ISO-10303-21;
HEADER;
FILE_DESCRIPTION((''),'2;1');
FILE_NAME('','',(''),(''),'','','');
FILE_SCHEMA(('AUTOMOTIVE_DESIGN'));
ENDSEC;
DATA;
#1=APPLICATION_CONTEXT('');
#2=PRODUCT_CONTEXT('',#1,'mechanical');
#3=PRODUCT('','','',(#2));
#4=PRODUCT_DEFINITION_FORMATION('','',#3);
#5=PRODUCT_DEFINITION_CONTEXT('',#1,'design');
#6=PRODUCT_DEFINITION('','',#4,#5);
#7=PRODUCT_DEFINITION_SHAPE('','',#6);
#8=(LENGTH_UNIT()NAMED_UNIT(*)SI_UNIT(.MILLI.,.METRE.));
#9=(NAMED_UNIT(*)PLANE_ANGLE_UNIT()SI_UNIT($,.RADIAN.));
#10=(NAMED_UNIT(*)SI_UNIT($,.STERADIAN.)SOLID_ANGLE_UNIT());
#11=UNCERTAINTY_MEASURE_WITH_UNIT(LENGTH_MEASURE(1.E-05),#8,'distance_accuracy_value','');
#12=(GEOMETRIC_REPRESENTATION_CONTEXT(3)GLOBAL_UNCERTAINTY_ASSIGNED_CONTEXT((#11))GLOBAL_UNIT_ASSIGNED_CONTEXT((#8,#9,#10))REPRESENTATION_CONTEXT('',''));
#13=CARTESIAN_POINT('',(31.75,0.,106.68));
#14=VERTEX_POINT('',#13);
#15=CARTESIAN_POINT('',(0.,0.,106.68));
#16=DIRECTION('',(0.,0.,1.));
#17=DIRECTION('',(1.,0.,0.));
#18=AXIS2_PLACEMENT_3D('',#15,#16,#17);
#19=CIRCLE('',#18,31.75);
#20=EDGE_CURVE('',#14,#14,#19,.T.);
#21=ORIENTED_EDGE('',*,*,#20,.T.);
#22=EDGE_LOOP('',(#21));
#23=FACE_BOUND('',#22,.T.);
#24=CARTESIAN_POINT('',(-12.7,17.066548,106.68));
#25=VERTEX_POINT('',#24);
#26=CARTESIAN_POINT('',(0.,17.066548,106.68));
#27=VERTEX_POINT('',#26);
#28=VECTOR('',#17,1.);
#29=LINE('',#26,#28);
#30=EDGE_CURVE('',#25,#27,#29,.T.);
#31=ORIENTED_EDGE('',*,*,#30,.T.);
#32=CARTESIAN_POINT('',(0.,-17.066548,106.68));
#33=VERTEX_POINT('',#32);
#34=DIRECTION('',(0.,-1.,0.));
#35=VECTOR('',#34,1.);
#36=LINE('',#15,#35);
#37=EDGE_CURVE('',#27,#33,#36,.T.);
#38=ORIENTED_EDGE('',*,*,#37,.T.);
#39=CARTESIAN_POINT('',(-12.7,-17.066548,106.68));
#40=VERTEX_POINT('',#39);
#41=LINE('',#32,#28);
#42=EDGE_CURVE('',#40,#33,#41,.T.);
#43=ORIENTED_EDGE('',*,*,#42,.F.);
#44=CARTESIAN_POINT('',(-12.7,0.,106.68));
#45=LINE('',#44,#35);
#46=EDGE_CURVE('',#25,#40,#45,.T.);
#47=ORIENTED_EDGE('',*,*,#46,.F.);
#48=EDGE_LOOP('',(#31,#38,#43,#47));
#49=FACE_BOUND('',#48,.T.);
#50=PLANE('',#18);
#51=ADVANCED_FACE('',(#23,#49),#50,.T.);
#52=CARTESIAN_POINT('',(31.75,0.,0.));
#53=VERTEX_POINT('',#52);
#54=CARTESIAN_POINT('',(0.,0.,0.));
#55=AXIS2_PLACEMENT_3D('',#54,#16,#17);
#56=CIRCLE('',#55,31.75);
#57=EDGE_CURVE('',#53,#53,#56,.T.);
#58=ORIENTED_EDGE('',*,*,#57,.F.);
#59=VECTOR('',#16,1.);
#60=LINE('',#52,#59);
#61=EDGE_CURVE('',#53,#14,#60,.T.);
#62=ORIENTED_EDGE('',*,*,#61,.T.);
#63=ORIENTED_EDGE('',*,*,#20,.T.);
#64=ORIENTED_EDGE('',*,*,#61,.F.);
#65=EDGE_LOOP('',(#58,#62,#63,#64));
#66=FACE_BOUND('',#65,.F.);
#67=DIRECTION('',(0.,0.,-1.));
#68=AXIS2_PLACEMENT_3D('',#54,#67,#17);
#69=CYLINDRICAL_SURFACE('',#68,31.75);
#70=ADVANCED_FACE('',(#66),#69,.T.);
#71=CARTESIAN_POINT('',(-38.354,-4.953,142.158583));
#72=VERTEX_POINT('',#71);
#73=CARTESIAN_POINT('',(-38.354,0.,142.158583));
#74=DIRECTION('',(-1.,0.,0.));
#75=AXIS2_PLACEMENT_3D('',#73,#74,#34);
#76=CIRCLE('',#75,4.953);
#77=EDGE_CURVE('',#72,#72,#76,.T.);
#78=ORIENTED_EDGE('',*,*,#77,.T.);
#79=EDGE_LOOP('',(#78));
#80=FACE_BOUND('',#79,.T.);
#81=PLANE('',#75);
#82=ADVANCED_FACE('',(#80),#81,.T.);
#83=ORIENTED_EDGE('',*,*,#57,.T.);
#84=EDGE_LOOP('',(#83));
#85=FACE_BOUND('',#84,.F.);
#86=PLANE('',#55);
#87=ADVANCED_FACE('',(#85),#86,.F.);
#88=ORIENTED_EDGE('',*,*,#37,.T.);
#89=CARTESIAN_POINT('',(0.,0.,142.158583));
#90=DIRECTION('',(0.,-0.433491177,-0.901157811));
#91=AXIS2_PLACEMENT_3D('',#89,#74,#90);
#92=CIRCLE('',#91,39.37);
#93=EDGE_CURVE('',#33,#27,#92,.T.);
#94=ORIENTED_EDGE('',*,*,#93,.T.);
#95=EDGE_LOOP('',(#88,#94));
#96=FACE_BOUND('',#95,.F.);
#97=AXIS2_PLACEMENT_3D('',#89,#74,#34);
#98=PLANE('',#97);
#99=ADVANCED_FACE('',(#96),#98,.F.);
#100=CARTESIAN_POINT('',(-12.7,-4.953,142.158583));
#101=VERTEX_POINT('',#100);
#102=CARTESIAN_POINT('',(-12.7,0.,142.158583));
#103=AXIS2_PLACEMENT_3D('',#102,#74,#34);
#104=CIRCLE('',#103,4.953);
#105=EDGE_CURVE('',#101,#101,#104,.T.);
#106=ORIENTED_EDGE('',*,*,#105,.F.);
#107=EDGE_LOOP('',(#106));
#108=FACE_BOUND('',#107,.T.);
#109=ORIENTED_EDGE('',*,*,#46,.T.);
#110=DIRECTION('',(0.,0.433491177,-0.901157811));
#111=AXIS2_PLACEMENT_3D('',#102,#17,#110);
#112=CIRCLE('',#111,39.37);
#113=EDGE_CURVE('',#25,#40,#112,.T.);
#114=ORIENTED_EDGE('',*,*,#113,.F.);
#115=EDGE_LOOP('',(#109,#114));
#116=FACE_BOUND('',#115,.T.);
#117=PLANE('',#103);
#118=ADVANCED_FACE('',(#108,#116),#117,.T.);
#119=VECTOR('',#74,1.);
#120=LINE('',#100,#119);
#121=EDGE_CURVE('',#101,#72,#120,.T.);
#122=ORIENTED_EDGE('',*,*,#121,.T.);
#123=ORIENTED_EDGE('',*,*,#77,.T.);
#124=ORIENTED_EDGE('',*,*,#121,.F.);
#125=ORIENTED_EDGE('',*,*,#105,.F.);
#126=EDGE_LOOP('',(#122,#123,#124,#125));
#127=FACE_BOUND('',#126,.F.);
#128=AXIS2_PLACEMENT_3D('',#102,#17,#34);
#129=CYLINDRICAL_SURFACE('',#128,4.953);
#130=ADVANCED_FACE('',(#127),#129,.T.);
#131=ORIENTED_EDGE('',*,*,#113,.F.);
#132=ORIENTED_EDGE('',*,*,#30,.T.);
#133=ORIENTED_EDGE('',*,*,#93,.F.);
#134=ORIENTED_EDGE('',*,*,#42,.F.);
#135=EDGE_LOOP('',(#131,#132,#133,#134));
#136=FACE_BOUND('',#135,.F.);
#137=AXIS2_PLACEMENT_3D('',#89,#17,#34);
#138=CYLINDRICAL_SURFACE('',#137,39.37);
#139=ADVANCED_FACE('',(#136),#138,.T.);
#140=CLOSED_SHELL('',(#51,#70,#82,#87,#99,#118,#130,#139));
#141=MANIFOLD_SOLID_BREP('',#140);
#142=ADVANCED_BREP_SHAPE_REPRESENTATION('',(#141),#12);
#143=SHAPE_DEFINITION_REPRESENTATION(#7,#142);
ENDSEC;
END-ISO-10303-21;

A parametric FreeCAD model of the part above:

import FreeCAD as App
import Part
import Sketcher
Q = App.Units.Quantity

doc = App.newDocument("Part")
body = doc.addObject("PartDesign::Body", "Body")

sketch1 = doc.addObject("Sketcher::SketchObject", "Sketch")
body.addObject(sketch1)
sketch1.AttachmentSupport = (doc.XY_Plane, [""])
sketch1.MapMode = "FlatFace"
sketch1.addGeometry(Part.Circle(App.Vector(0, 0, 0), App.Vector(0, 0, 1), 31.75), False)
sketch1.addConstraint([
    Sketcher.Constraint("Coincident", 0, 3, -1, 1),
    Sketcher.Constraint("Diameter", 0, Q("2.5 in")),
])
pad1 = doc.addObject("PartDesign::Pad", "Pad")
body.addObject(pad1)
pad1.Profile = sketch1
pad1.Length = Q("4.2 in")

sketch2 = doc.addObject("Sketcher::SketchObject", "Sketch001")
body.addObject(sketch2)
sketch2.AttachmentSupport = (doc.YZ_Plane, [""])
sketch2.MapMode = "FlatFace"
sketch2.addGeometry(Part.Circle(App.Vector(0, 142.158583, 0), App.Vector(0, 0, 1), 39.37), False)
sketch2.addConstraint([
    Sketcher.Constraint("PointOnObject", 0, 3, -2),
    Sketcher.Constraint("Diameter", 0, Q("3.1 in")),
    Sketcher.Constraint("DistanceY", -1, 1, 0, 3, 142.158583),
])
pad2 = doc.addObject("PartDesign::Pad", "Pad001")
body.addObject(pad2)
pad2.Profile = sketch2
pad2.Length = Q("0.5 in")
pad2.Reversed = True

sketch3 = doc.addObject("Sketcher::SketchObject", "Sketch002")
body.addObject(sketch3)
sketch3.AttachmentSupport = (doc.YZ_Plane, [""])
sketch3.MapMode = "FlatFace"
sketch3.AttachmentOffset = App.Placement(App.Vector(0, 0, -0.5 * 25.4), App.Rotation())
sketch3.addGeometry(Part.Circle(App.Vector(0, 142.158583, 0), App.Vector(0, 0, 1), 4.953), False)
sketch3.addConstraint([
    Sketcher.Constraint("PointOnObject", 0, 3, -2),
    Sketcher.Constraint("Diameter", 0, Q("0.39 in")),
    Sketcher.Constraint("DistanceY", -1, 1, 0, 3, 142.158583),
])
pad3 = doc.addObject("PartDesign::Pad", "Pad002")
body.addObject(pad3)
pad3.Profile = sketch3
pad3.Length = Q("1.01 in")
pad3.Reversed = True

doc.recompute()
